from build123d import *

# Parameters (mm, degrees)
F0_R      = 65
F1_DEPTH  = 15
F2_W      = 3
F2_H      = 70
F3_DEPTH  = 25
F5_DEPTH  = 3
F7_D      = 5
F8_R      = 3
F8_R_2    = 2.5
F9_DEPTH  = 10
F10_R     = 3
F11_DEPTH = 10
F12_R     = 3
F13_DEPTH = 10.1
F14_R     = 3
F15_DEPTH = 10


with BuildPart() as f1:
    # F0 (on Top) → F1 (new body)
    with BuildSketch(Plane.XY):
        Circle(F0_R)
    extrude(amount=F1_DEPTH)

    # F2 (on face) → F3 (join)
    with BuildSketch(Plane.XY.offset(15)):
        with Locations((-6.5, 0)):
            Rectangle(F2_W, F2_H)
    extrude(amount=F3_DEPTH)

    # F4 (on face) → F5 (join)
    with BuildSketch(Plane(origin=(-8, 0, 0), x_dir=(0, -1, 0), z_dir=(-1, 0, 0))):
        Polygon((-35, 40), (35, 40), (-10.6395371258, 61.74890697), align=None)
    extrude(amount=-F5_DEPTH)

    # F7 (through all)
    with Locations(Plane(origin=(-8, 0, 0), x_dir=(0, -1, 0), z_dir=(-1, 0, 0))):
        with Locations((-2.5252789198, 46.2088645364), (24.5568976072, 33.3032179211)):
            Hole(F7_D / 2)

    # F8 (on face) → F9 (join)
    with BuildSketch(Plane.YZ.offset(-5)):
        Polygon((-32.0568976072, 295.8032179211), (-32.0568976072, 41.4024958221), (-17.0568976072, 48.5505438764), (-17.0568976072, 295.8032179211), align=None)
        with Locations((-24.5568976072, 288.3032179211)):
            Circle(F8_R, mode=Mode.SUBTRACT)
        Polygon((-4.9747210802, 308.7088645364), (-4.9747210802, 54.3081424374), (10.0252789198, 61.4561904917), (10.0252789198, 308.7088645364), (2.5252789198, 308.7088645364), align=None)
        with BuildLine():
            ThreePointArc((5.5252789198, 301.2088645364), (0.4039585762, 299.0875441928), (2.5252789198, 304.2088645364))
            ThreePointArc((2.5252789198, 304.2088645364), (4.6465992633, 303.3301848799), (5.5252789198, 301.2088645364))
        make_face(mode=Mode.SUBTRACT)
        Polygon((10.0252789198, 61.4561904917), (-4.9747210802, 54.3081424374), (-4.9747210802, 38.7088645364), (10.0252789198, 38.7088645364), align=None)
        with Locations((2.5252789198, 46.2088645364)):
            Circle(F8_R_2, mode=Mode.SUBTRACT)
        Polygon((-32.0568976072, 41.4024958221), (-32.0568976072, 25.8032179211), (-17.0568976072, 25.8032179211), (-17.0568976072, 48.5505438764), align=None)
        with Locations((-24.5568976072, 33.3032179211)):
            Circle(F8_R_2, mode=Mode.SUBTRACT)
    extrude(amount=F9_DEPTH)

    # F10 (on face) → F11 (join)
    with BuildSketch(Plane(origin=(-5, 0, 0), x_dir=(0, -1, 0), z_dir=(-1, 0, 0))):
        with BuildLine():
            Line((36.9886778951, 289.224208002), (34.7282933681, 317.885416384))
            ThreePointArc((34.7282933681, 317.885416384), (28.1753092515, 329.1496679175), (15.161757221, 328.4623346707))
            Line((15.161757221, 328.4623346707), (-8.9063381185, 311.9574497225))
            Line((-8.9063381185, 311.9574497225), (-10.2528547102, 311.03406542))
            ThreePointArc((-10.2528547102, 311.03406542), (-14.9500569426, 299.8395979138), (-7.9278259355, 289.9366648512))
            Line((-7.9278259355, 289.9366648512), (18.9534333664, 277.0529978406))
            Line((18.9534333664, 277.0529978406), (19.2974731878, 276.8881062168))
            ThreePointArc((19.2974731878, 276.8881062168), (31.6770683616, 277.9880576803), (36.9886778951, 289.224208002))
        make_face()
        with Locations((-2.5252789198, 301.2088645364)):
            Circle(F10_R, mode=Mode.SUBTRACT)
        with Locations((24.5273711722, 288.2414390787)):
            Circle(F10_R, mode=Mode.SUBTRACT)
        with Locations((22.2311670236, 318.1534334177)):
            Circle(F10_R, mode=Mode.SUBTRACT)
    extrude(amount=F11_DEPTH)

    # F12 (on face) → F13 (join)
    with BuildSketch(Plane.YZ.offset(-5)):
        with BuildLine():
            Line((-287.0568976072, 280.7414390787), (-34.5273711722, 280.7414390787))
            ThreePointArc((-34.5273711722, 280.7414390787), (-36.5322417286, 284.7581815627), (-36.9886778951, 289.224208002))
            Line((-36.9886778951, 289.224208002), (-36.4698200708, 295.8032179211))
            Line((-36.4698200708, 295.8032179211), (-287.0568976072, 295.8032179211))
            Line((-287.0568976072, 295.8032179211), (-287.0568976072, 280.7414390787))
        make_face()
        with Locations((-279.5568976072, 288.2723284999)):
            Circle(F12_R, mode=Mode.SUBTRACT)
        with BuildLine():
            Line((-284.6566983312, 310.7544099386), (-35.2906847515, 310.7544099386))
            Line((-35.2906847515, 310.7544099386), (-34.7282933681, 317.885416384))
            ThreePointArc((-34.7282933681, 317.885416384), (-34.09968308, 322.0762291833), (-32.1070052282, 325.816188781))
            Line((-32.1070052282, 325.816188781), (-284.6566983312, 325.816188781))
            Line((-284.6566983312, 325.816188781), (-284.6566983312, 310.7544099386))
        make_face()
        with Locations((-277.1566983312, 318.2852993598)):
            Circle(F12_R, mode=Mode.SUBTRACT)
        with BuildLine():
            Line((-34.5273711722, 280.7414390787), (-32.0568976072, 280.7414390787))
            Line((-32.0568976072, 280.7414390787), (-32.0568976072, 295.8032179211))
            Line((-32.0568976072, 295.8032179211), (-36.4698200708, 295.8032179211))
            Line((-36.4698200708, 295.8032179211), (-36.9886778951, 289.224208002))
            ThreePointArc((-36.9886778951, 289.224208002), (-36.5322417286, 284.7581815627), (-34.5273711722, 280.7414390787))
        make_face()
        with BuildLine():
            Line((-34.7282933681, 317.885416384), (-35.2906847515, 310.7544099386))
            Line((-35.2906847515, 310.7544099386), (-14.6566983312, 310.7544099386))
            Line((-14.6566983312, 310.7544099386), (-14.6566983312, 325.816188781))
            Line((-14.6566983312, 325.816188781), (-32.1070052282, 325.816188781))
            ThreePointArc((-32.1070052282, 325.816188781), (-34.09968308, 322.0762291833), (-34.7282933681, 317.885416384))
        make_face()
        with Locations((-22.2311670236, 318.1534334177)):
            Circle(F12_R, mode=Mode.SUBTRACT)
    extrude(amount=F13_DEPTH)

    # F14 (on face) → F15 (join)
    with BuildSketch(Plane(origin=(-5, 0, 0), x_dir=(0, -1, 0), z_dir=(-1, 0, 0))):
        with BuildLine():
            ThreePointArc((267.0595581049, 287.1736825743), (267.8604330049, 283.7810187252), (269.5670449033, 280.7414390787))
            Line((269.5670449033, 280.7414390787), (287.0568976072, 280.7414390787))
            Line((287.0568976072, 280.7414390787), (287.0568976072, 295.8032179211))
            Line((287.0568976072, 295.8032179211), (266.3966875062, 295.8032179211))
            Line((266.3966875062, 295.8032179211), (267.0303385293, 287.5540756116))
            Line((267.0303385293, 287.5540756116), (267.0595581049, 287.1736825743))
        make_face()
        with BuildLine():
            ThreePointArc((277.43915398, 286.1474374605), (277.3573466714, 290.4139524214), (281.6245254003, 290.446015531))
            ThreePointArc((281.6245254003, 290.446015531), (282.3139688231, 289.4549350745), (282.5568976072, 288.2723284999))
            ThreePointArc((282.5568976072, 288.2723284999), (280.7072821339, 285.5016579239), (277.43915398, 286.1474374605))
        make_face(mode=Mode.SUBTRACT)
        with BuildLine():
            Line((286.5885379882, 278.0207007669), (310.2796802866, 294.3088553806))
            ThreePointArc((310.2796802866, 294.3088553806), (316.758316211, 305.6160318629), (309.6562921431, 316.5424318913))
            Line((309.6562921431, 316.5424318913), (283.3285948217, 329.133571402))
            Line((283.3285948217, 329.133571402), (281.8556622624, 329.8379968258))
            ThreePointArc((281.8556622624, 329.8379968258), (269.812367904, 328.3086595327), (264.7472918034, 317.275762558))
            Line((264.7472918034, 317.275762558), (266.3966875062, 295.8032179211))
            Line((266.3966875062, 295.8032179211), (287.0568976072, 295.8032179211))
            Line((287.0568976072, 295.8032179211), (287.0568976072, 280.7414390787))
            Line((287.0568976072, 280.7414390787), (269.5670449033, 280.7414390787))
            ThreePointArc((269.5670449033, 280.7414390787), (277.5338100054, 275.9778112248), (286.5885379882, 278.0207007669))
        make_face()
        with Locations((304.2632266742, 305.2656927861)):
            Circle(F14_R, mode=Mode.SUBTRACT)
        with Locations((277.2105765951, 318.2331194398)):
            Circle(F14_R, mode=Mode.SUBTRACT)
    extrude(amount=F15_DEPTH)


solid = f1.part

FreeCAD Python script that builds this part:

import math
import FreeCAD as App
import Part
import Sketcher
from FreeCAD import Vector
Q = App.Units.Quantity

doc = App.newDocument("Part")
params = doc.addObject("Spreadsheet::Sheet", "Params")
for row, (alias, value) in enumerate([
    ("sketch1_diameter", "130 mm"),
    ("pad1_length", "15 mm"),
    ("sketch2_width", "3 mm"),
    ("sketch2_height", "70 mm"),
    ("pad2_length", "25 mm"),
    ("sketch3_width", "70 mm"),
    ("pad3_length", "3 mm"),
    ("sketch4_diameter", "5 mm"),
    ("hole_diameter", "5 mm"),
    ("sketch5_diameter", "5 mm"),
    ("sketch5_diameter2", "6 mm"),
    ("sketch5_width", "15 mm"),
    ("sketch5_height", "270 mm"),
    ("pad4_length", "10 mm"),
    ("sketch6_diameter", "6 mm"),
    ("sketch6_radius", "12.5 mm"),
    ("pad5_length", "10 mm"),
    ("sketch7_diameter", "6 mm"),
    ("sketch7_width", "255 mm"),
    ("sketch7_width2", "270 mm"),
    ("pad6_length", "10.1 mm"),
    ("sketch8_diameter", "6 mm"),
    ("sketch8_radius", "12.5 mm"),
    ("pad7_length", "10 mm"),
], start=1):
    params.set(f"A{row}", alias)
    params.set(f"B{row}", "=" + value)
    params.setAlias(f"B{row}", alias)

body = doc.addObject("PartDesign::Body", "Body")

sketch1 = body.newObject("Sketcher::SketchObject", "Sketch")
sketch1.AttachmentSupport = (doc.getObject("XY_Plane"), [""])
sketch1.MapMode = "FlatFace"
sketch1.addGeometry(Part.Circle(Vector(0, 0, 0), Vector(0, 0, 1), 65), False)
sketch1.addConstraint([
    Sketcher.Constraint("Coincident", 0, 3, -1, 1),
    Sketcher.Constraint("Diameter", 0, Q("130 mm")),
])
sketch1.setExpression("Constraints[1]", "Params.sketch1_diameter")
pad1 = body.newObject("PartDesign::Pad", "Pad")
pad1.Profile = sketch1
pad1.setExpression("Length", "Params.pad1_length")

sketch2 = body.newObject("Sketcher::SketchObject", "Sketch001")
sketch2.AttachmentSupport = (doc.getObject("XY_Plane"), [""])
sketch2.MapMode = "FlatFace"
sketch2.AttachmentOffset = App.Placement(Vector(0, 0, 15), App.Rotation())
sketch2.addGeometry([
    Part.LineSegment(Vector(-8, 35, 0), Vector(-8, -35, 0)),
    Part.LineSegment(Vector(-8, -35, 0), Vector(-5, -35, 0)),
    Part.LineSegment(Vector(-5, -35, 0), Vector(-5, 35, 0)),
    Part.LineSegment(Vector(-5, 35, 0), Vector(-8, 35, 0)),
], False)
sketch2.addConstraint([
    Sketcher.Constraint("Coincident", 0, 2, 1, 1),
    Sketcher.Constraint("Coincident", 1, 2, 2, 1),
    Sketcher.Constraint("Coincident", 2, 2, 3, 1),
    Sketcher.Constraint("Coincident", 3, 2, 0, 1),
    Sketcher.Constraint("Vertical", 0),
    Sketcher.Constraint("Horizontal", 1),
    Sketcher.Constraint("Vertical", 2),
    Sketcher.Constraint("Horizontal", 3),
    Sketcher.Constraint("DistanceX", 1, 1, 1, 2, Q("3 mm")),
    Sketcher.Constraint("DistanceY", 0, 2, 0, 1, Q("70 mm")),
    Sketcher.Constraint("DistanceX", 0, 2, -1, 1, Q("8 mm")),
    Sketcher.Constraint("DistanceY", 0, 2, -1, 1, Q("35 mm")),
])
sketch2.setExpression("Constraints[8]", "Params.sketch2_width")
sketch2.setExpression("Constraints[9]", "Params.sketch2_height")
pad2 = body.newObject("PartDesign::Pad", "Pad001")
pad2.Profile = sketch2
pad2.setExpression("Length", "Params.pad2_length")

sketch3 = body.newObject("Sketcher::SketchObject", "Sketch002")
sketch3.AttachmentSupport = (doc.getObject("YZ_Plane"), [""])
sketch3.MapMode = "FlatFace"
sketch3.AttachmentOffset = App.Placement(Vector(0, 0, -8), App.Rotation())
sketch3.addGeometry([
    Part.LineSegment(Vector(35, 40, 0), Vector(-35, 40, 0)),
    Part.LineSegment(Vector(-35, 40, 0), Vector(11, 62, 0)),
    Part.LineSegment(Vector(11, 62, 0), Vector(35, 40, 0)),
], False)
sketch3.addConstraint([
    Sketcher.Constraint("Coincident", 0, 2, 1, 1),
    Sketcher.Constraint("Coincident", 1, 2, 2, 1),
    Sketcher.Constraint("Coincident", 2, 2, 0, 1),
    Sketcher.Constraint("Horizontal", 0),
    Sketcher.Constraint("DistanceX", 0, 2, 0, 1, Q("70 mm")),
    Sketcher.Constraint("DistanceX", 0, 2, -1, 1, Q("35 mm")),
    Sketcher.Constraint("DistanceY", -1, 1, 0, 2, Q("40 mm")),
    Sketcher.Constraint("Distance", 2, Q("32.656502 mm")),
    Sketcher.Constraint("Distance", 1, Q("50.556724 mm")),
])
sketch3.setExpression("Constraints[4]", "Params.sketch3_width")
pad3 = body.newObject("PartDesign::Pad", "Pad002")
pad3.Profile = sketch3
pad3.setExpression("Length", "Params.pad3_length")

sketch4 = body.newObject("Sketcher::SketchObject", "Sketch003")
sketch4.AttachmentSupport = (doc.getObject("YZ_Plane"), [""])
sketch4.MapMode = "FlatFace"
sketch4.AttachmentOffset = App.Placement(Vector(0, 0, -8), App.Rotation())
sketch4.addGeometry([
    Part.Circle(Vector(2.5, 46.2, 0), Vector(0, 0, 1), 2.5),
    Part.Circle(Vector(-24.6, 33.3, 0), Vector(0, 0, 1), 2.5),
], False)
sketch4.addConstraint([
    Sketcher.Constraint("Equal", 0, 1),
    Sketcher.Constraint("Diameter", 0, Q("5 mm")),
    Sketcher.Constraint("DistanceX", -1, 1, 0, 3, Q("2.525279 mm")),
    Sketcher.Constraint("DistanceY", -1, 1, 0, 3, Q("46.208865 mm")),
    Sketcher.Constraint("DistanceX", 1, 3, -1, 1, Q("24.556898 mm")),
    Sketcher.Constraint("DistanceY", -1, 1, 1, 3, Q("33.303218 mm")),
])
sketch4.setExpression("Constraints[1]", "Params.sketch4_diameter")
doc.recompute()
hole = body.newObject("PartDesign::Hole", "Hole")
hole.Profile = sketch4
hole.ThreadType = "None"
hole.setExpression("Diameter", "Params.hole_diameter")
hole.DepthType = "ThroughAll"
hole.Reversed = True

sketch5 = body.newObject("Sketcher::SketchObject", "Sketch004")
sketch5.AttachmentSupport = (doc.getObject("YZ_Plane"), [""])
sketch5.MapMode = "FlatFace"
sketch5.AttachmentOffset = App.Placement(Vector(0, 0, -5), App.Rotation())
sketch5.addGeometry([
    Part.LineSegment(Vector(-32.1, 295.8, 0), Vector(-32.1, 25.8, 0)),
    Part.LineSegment(Vector(-32.1, 25.8, 0), Vector(-17.1, 25.8, 0)),
    Part.LineSegment(Vector(-17.1, 25.8, 0), Vector(-17.1, 295.8, 0)),
    Part.LineSegment(Vector(-17.1, 295.8, 0), Vector(-32.1, 295.8, 0)),
    Part.Circle(Vector(-24.6, 33.3, 0), Vector(0, 0, 1), 2.5),
    Part.Circle(Vector(-24.6, 288.3, 0), Vector(0, 0, 1), 3),
    Part.LineSegment(Vector(-5, 308.7, 0), Vector(-5, 38.7, 0)),
    Part.LineSegment(Vector(-5, 38.7, 0), Vector(10, 38.7, 0)),
    Part.LineSegment(Vector(10, 38.7, 0), Vector(10, 308.7, 0)),
    Part.LineSegment(Vector(10, 308.7, 0), Vector(-5, 308.7, 0)),
    Part.Circle(Vector(2.5, 46.2, 0), Vector(0, 0, 1), 2.5),
    Part.ArcOfCircle(Part.Circle(Vector(2.5, 301.2, 0), Vector(0, 0, 1), 3), math.radians(0), math.radians(90)),
    Part.ArcOfCircle(Part.Circle(Vector(2.5, 301.2, 0), Vector(0, 0, 1), 3), math.radians(90), math.radians(360)),
], False)
sketch5.addConstraint([
    Sketcher.Constraint("Coincident", 0, 2, 1, 1),
    Sketcher.Constraint("Coincident", 1, 2, 2, 1),
    Sketcher.Constraint("Coincident", 2, 2, 3, 1),
    Sketcher.Constraint("Coincident", 3, 2, 0, 1),
    Sketcher.Constraint("Coincident", 6, 2, 7, 1),
    Sketcher.Constraint("Coincident", 7, 2, 8, 1),
    Sketcher.Constraint("Coincident", 8, 2, 9, 1),
    Sketcher.Constraint("Coincident", 9, 2, 6, 1),
    Sketcher.Constraint("Tangent", 11, 1, 12, 2),
    Sketcher.Constraint("Coincident", 12, 1, 11, 2),
    Sketcher.Constraint("Vertical", 0),
    Sketcher.Constraint("Horizontal", 1),
    Sketcher.Constraint("Vertical", 2),
    Sketcher.Constraint("Horizontal", 3),
    Sketcher.Constraint("Vertical", 6),
    Sketcher.Constraint("Horizontal", 7),
    Sketcher.Constraint("Vertical", 8),
    Sketcher.Constraint("Horizontal", 9),
    Sketcher.Constraint("Equal", 4, 10),
    Sketcher.Constraint("Equal", 5, 11),
    Sketcher.Constraint("Horizontal", 12, 3, 11, 1),
    Sketcher.Constraint("Vertical", 4, 3, 5, 3),
    Sketcher.Constraint("Vertical", 10, 3, 11, 3),
    Sketcher.Constraint("Vertical", 11, 3, 12, 1),
    Sketcher.Constraint("Equal", 3, 7),
    Sketcher.Constraint("Equal", 2, 6),
    Sketcher.Constraint("Diameter", 4, Q("5 mm")),
    Sketcher.Constraint("Diameter", 5, Q("6 mm")),
    Sketcher.Constraint("DistanceX", 1, 1, 1, 2, Q("15 mm")),
    Sketcher.Constraint("DistanceY", 0, 2, 0, 1, Q("270 mm")),
    Sketcher.Constraint("DistanceY", 4, 3, 5, 3, Q("255 mm")),
    Sketcher.Constraint("DistanceY", 10, 3, 11, 3, Q("255 mm")),
    Sketcher.Constraint("DistanceX", 0, 2, 4, 3, Q("7.5 mm")),
    Sketcher.Constraint("DistanceY", 0, 2, 4, 3, Q("7.5 mm")),
    Sketcher.Constraint("DistanceX", 6, 2, 10, 3, Q("7.5 mm")),
    Sketcher.Constraint("DistanceY", 6, 2, 10, 3, Q("7.5 mm")),
    Sketcher.Constraint("DistanceX", -1, 1, 10, 3, Q("2.525279 mm")),
    Sketcher.Constraint("DistanceX", 4, 3, -1, 1, Q("24.556898 mm")),
    Sketcher.Constraint("DistanceY", -1, 1, 4, 3, Q("33.303218 mm")),
    Sketcher.Constraint("DistanceY", -1, 1, 10, 3, Q("46.208865 mm")),
])
sketch5.setExpression("Constraints[26]", "Params.sketch5_diameter")
sketch5.setExpression("Constraints[27]", "Params.sketch5_diameter2")
sketch5.setExpression("Constraints[28]", "Params.sketch5_width")
sketch5.setExpression("Constraints[29]", "Params.sketch5_height")
pad4 = body.newObject("PartDesign::Pad", "Pad003")
pad4.Profile = sketch5
pad4.setExpression("Length", "Params.pad4_length")

sketch6 = body.newObject("Sketcher::SketchObject", "Sketch005")
sketch6.AttachmentSupport = (doc.getObject("YZ_Plane"), [""])
sketch6.MapMode = "FlatFace"
sketch6.AttachmentOffset = App.Placement(Vector(0, 0, -5), App.Rotation())
sketch6.addGeometry([
    Part.LineSegment(Vector(-36.99, 289.22, 0), Vector(-34.73, 317.89, 0)),
    Part.ArcOfCircle(Part.Circle(Vector(-22.23, 318.15, 0), Vector(0, 0, 1), 12.5), math.radians(56), math.radians(181)),
    Part.LineSegment(Vector(-15.16, 328.46, 0), Vector(8.91, 311.96, 0)),
    Part.LineSegment(Vector(8.91, 311.96, 0), Vector(10.25, 311.03, 0)),
    Part.ArcOfCircle(Part.Circle(Vector(2.53, 301.21, 0), Vector(0, 0, 1), 12.5), math.radians(-64), math.radians(52)),
    Part.LineSegment(Vector(7.93, 289.94, 0), Vector(-18.95, 277.05, 0)),
    Part.LineSegment(Vector(-18.95, 277.05, 0), Vector(-19.3, 276.89, 0)),
    Part.ArcOfCircle(Part.Circle(Vector(-24.53, 288.24, 0), Vector(0, 0, 1), 12.5), math.radians(175), math.radians(295)),
    Part.Circle(Vector(2.53, 301.21, 0), Vector(0, 0, 1), 3),
    Part.Circle(Vector(-24.53, 288.24, 0), Vector(0, 0, 1), 3),
    Part.Circle(Vector(-22.23, 318.15, 0), Vector(0, 0, 1), 3),
], False)
sketch6.addConstraint([
    Sketcher.Constraint("Coincident", 0, 2, 1, 2),
    Sketcher.Constraint("Tangent", 1, 1, 2, 1),
    Sketcher.Constraint("Coincident", 2, 2, 3, 1),
    Sketcher.Constraint("Coincident", 3, 2, 4, 2),
    Sketcher.Constraint("Tangent", 4, 1, 5, 1),
    Sketcher.Constraint("Coincident", 5, 2, 6, 1),
    Sketcher.Constraint("Coincident", 6, 2, 7, 2),
    Sketcher.Constraint("Tangent", 7, 1, 0, 1),
    Sketcher.Constraint("Coincident", 8, 3, 4, 3),
    Sketcher.Constraint("Coincident", 9, 3, 7, 3),
    Sketcher.Constraint("Coincident", 10, 3, 1, 3),
    Sketcher.Constraint("Equal", 1, 4),
    Sketcher.Constraint("Equal", 4, 7),
    Sketcher.Constraint("Equal", 8, 9),
    Sketcher.Constraint("Equal", 9, 10),
    Sketcher.Constraint("Parallel", 2, 3),
    Sketcher.Constraint("Parallel", 5, 6),
    Sketcher.Constraint("Diameter", 8, Q("6 mm")),
    Sketcher.Constraint("Radius", 1, Q("12.5 mm")),
    Sketcher.Constraint("DistanceY", 1, 3, 1, 1, Q("10.308901 mm")),
    Sketcher.Constraint("DistanceY", 4, 3, 3, 2, Q("9.825201 mm")),
    Sketcher.Constraint("DistanceY", 4, 1, 4, 3, Q("11.2722 mm")),
    Sketcher.Constraint("DistanceX", 6, 2, 4, 1, Q("27.225299 mm")),
    Sketcher.Constraint("DistanceY", 6, 2, 7, 1, Q("12.336102 mm")),
    Sketcher.Constraint("Distance", 3, Q("1.632711 mm")),
    Sketcher.Constraint("DistanceX", -1, 1, 4, 3, Q("2.525279 mm")),
    Sketcher.Constraint("DistanceX", 7, 3, -1, 1, Q("24.527371 mm")),
    Sketcher.Constraint("DistanceY", -1, 1, 7, 3, Q("288.241439 mm")),
    Sketcher.Constraint("DistanceY", 4, 3, 1, 3, Q("16.944569 mm")),
    Sketcher.Constraint("DistanceY", 5, 2, 7, 3, Q("11.188441 mm")),
])
sketch6.setExpression("Constraints[17]", "Params.sketch6_diameter")
sketch6.setExpression("Constraints[18]", "Params.sketch6_radius")
pad5 = body.newObject("PartDesign::Pad", "Pad004")
pad5.Profile = sketch6
pad5.setExpression("Length", "Params.pad5_length")
pad5.Reversed = True

sketch7 = body.newObject("Sketcher::SketchObject", "Sketch006")
sketch7.AttachmentSupport = (doc.getObject("YZ_Plane"), [""])
sketch7.MapMode = "FlatFace"
sketch7.AttachmentOffset = App.Placement(Vector(0, 0, -5), App.Rotation())
sketch7.addGeometry([
    Part.LineSegment(Vector(-287.1, 280.7, 0), Vector(-32.1, 280.7, 0)),
    Part.LineSegment(Vector(-32.1, 280.7, 0), Vector(-32.1, 295.8, 0)),
    Part.LineSegment(Vector(-32.1, 295.8, 0), Vector(-287.1, 295.8, 0)),
    Part.LineSegment(Vector(-287.1, 295.8, 0), Vector(-287.1, 280.7, 0)),
    Part.Circle(Vector(-279.6, 288.3, 0), Vector(0, 0, 1), 3),
    Part.LineSegment(Vector(-284.7, 310.8, 0), Vector(-14.7, 310.8, 0)),
    Part.LineSegment(Vector(-14.7, 310.8, 0), Vector(-14.7, 325.8, 0)),
    Part.LineSegment(Vector(-14.7, 325.8, 0), Vector(-284.7, 325.8, 0)),
    Part.LineSegment(Vector(-284.7, 325.8, 0), Vector(-284.7, 310.8, 0)),
    Part.Circle(Vector(-22.2, 318.2, 0), Vector(0, 0, 1), 3),
    Part.Circle(Vector(-277.2, 318.3, 0), Vector(0, 0, 1), 3),
], False)
sketch7.addConstraint([
    Sketcher.Constraint("Coincident", 0, 2, 1, 1),
    Sketcher.Constraint("Coincident", 1, 2, 2, 1),
    Sketcher.Constraint("Coincident", 2, 2, 3, 1),
    Sketcher.Constraint("Coincident", 3, 2, 0, 1),
    Sketcher.Constraint("Coincident", 5, 2, 6, 1),
    Sketcher.Constraint("Coincident", 6, 2, 7, 1),
    Sketcher.Constraint("Coincident", 7, 2, 8, 1),
    Sketcher.Constraint("Coincident", 8, 2, 5, 1),
    Sketcher.Constraint("Horizontal", 0),
    Sketcher.Constraint("Vertical", 1),
    Sketcher.Constraint("Horizontal", 2),
    Sketcher.Constraint("Vertical", 3),
    Sketcher.Constraint("Horizontal", 5),
    Sketcher.Constraint("Vertical", 6),
    Sketcher.Constraint("Horizontal", 7),
    Sketcher.Constraint("Vertical", 8),
    Sketcher.Constraint("Equal", 4, 9),
    Sketcher.Constraint("Equal", 9, 10),
    Sketcher.Constraint("Equal", 3, 6),
    Sketcher.Constraint("Diameter", 4, Q("6 mm")),
    Sketcher.Constraint("DistanceX", 0, 1, 0, 2, Q("255 mm")),
    Sketcher.Constraint("DistanceX", 5, 1, 5, 2, Q("270 mm")),
    Sketcher.Constraint("DistanceX", 4, 3, 0, 2, Q("247.5 mm")),
    Sketcher.Constraint("DistanceX", 10, 3, 5, 2, Q("262.5 mm")),
    Sketcher.Constraint("DistanceY", 1, 1, 1, 2, Q("15.061779 mm")),
    Sketcher.Constraint("DistanceX", 10, 3, -1, 1, Q("277.156698 mm")),
    Sketcher.Constraint("DistanceY", -1, 1, 10, 3, Q("318.285299 mm")),
    Sketcher.Constraint("DistanceX", 4, 3, 10, 3, Q("2.400199 mm")),
    Sketcher.Constraint("DistanceY", -1, 1, 4, 3, Q("288.272329 mm")),
    Sketcher.Constraint("DistanceY", -1, 1, 0, 2, Q("280.741439 mm")),
    Sketcher.Constraint("DistanceY", -1, 1, 5, 2, Q("310.75441 mm")),
    Sketcher.Constraint("DistanceX", 4, 3, 9, 3, Q("257.325731 mm")),
    Sketcher.Constraint("DistanceY", -1, 1, 9, 3, Q("318.153433 mm")),
])
sketch7.setExpression("Constraints[19]", "Params.sketch7_diameter")
sketch7.setExpression("Constraints[20]", "Params.sketch7_width")
sketch7.setExpression("Constraints[21]", "Params.sketch7_width2")
pad6 = body.newObject("PartDesign::Pad", "Pad005")
pad6.Profile = sketch7
pad6.setExpression("Length", "Params.pad6_length")

sketch8 = body.newObject("Sketcher::SketchObject", "Sketch007")
sketch8.AttachmentSupport = (doc.getObject("YZ_Plane"), [""])
sketch8.MapMode = "FlatFace"
sketch8.AttachmentOffset = App.Placement(Vector(0, 0, -5), App.Rotation())
sketch8.addGeometry([
    Part.ArcOfCircle(Part.Circle(Vector(-279.51, 288.32, 0), Vector(0, 0, 1), 12.5), math.radians(-37), math.radians(-5)),
    Part.ArcOfCircle(Part.Circle(Vector(-279.51, 288.32, 0), Vector(0, 0, 1), 12.5), math.radians(-125), math.radians(-37)),
    Part.LineSegment(Vector(-286.59, 278.02, 0), Vector(-310.28, 294.31, 0)),
    Part.ArcOfCircle(Part.Circle(Vector(-304.26, 305.27, 0), Vector(0, 0, 1), 12.5), math.radians(116), math.radians(241)),
    Part.LineSegment(Vector(-309.66, 316.54, 0), Vector(-283.33, 329.13, 0)),
    Part.LineSegment(Vector(-283.33, 329.13, 0), Vector(-281.86, 329.84, 0)),
    Part.ArcOfCircle(Part.Circle(Vector(-277.21, 318.23, 0), Vector(0, 0, 1), 12.5), math.radians(-4), math.radians(112)),
    Part.LineSegment(Vector(-264.75, 317.28, 0), Vector(-266.4, 295.8, 0)),
    Part.LineSegment(Vector(-266.4, 295.8, 0), Vector(-267.03, 287.55, 0)),
    Part.LineSegment(Vector(-267.03, 287.55, 0), Vector(-267.06, 287.17, 0)),
    Part.ArcOfCircle(Part.Circle(Vector(-279.56, 288.27, 0), Vector(0, 0, 1), 3), math.radians(180), math.radians(315)),
    Part.ArcOfCircle(Part.Circle(Vector(-279.51, 288.32, 0), Vector(0, 0, 1), 3), math.radians(-46), math.radians(135)),
    Part.ArcOfCircle(Part.Circle(Vector(-279.56, 288.27, 0), Vector(0, 0, 1), 3), math.radians(134), math.radians(180)),
    Part.Circle(Vector(-277.21, 318.23, 0), Vector(0, 0, 1), 3),
    Part.Circle(Vector(-304.26, 305.27, 0), Vector(0, 0, 1), 3),
], False)
sketch8.addConstraint([
    Sketcher.Constraint("Tangent", 0, 1, 1, 2),
    Sketcher.Constraint("Tangent", 1, 1, 2, 1),
    Sketcher.Constraint("Coincident", 2, 2, 3, 2),
    Sketcher.Constraint("Tangent", 3, 1, 4, 1),
    Sketcher.Constraint("Coincident", 4, 2, 5, 1),
    Sketcher.Constraint("Coincident", 5, 2, 6, 2),
    Sketcher.Constraint("Tangent", 6, 1, 7, 1),
    Sketcher.Constraint("Coincident", 7, 2, 8, 1),
    Sketcher.Constraint("Coincident", 8, 2, 9, 1),
    Sketcher.Constraint("Coincident", 9, 2, 0, 2),
    Sketcher.Constraint("Coincident", 10, 2, 11, 1),
    Sketcher.Constraint("Coincident", 11, 2, 12, 1),
    Sketcher.Constraint("Tangent", 12, 2, 10, 1),
    Sketcher.Constraint("Coincident", 11, 3, 0, 3),
    Sketcher.Constraint("Coincident", 13, 3, 6, 3),
    Sketcher.Constraint("Coincident", 14, 3, 3, 3),
    Sketcher.Constraint("Equal", 0, 1),
    Sketcher.Constraint("Equal", 1, 3),
    Sketcher.Constraint("Equal", 3, 6),
    Sketcher.Constraint("Equal", 10, 11),
    Sketcher.Constraint("Equal", 11, 12),
    Sketcher.Constraint("Equal", 12, 13),
    Sketcher.Constraint("Equal", 13, 14),
    Sketcher.Constraint("Parallel", 4, 5),
    Sketcher.Constraint("Parallel", 7, 8),
    Sketcher.Constraint("Parallel", 8, 9),
    Sketcher.Constraint("Horizontal", 10, 3, 12, 2),
    Sketcher.Constraint("Diameter", 13, Q("6 mm")),
    Sketcher.Constraint("Radius", 0, Q("12.5 mm")),
    Sketcher.Constraint("Distance", 7, Q("21.5358 mm")),
    Sketcher.Constraint("DistanceY", -1, 1, 1, 1, Q("278.020701 mm")),
    Sketcher.Constraint("Distance", 5, Q("1.632711 mm")),
    Sketcher.Constraint("DistanceX", 0, 3, -1, 1, Q("279.506782 mm")),
    Sketcher.Constraint("DistanceY", -1, 1, 6, 3, Q("318.233119 mm")),
    Sketcher.Constraint("DistanceY", -1, 1, 10, 3, Q("288.272329 mm")),
    Sketcher.Constraint("DistanceY", -1, 1, 0, 1, Q("280.741439 mm")),
    Sketcher.Constraint("DistanceX", 2, 2, -1, 1, Q("310.27968 mm")),
    Sketcher.Constraint("DistanceY", -1, 1, 3, 1, Q("316.542432 mm")),
    Sketcher.Constraint("DistanceY", -1, 1, 4, 2, Q("329.133571 mm")),
    Sketcher.Constraint("DistanceX", 6, 1, -1, 1, Q("264.747292 mm")),
    Sketcher.Constraint("DistanceX", 8, 2, -1, 1, Q("267.030339 mm")),
    Sketcher.Constraint("DistanceX", 9, 2, -1, 1, Q("267.059558 mm")),
    Sketcher.Constraint("DistanceY", 1, 3, 3, 3, Q("16.944568 mm")),
    Sketcher.Constraint("DistanceX", 3, 3, 10, 3, Q("24.706329 mm")),
])
sketch8.setExpression("Constraints[27]", "Params.sketch8_diameter")
sketch8.setExpression("Constraints[28]", "Params.sketch8_radius")
pad7 = body.newObject("PartDesign::Pad", "Pad006")
pad7.Profile = sketch8
pad7.setExpression("Length", "Params.pad7_length")
pad7.Reversed = True

doc.recompute()
